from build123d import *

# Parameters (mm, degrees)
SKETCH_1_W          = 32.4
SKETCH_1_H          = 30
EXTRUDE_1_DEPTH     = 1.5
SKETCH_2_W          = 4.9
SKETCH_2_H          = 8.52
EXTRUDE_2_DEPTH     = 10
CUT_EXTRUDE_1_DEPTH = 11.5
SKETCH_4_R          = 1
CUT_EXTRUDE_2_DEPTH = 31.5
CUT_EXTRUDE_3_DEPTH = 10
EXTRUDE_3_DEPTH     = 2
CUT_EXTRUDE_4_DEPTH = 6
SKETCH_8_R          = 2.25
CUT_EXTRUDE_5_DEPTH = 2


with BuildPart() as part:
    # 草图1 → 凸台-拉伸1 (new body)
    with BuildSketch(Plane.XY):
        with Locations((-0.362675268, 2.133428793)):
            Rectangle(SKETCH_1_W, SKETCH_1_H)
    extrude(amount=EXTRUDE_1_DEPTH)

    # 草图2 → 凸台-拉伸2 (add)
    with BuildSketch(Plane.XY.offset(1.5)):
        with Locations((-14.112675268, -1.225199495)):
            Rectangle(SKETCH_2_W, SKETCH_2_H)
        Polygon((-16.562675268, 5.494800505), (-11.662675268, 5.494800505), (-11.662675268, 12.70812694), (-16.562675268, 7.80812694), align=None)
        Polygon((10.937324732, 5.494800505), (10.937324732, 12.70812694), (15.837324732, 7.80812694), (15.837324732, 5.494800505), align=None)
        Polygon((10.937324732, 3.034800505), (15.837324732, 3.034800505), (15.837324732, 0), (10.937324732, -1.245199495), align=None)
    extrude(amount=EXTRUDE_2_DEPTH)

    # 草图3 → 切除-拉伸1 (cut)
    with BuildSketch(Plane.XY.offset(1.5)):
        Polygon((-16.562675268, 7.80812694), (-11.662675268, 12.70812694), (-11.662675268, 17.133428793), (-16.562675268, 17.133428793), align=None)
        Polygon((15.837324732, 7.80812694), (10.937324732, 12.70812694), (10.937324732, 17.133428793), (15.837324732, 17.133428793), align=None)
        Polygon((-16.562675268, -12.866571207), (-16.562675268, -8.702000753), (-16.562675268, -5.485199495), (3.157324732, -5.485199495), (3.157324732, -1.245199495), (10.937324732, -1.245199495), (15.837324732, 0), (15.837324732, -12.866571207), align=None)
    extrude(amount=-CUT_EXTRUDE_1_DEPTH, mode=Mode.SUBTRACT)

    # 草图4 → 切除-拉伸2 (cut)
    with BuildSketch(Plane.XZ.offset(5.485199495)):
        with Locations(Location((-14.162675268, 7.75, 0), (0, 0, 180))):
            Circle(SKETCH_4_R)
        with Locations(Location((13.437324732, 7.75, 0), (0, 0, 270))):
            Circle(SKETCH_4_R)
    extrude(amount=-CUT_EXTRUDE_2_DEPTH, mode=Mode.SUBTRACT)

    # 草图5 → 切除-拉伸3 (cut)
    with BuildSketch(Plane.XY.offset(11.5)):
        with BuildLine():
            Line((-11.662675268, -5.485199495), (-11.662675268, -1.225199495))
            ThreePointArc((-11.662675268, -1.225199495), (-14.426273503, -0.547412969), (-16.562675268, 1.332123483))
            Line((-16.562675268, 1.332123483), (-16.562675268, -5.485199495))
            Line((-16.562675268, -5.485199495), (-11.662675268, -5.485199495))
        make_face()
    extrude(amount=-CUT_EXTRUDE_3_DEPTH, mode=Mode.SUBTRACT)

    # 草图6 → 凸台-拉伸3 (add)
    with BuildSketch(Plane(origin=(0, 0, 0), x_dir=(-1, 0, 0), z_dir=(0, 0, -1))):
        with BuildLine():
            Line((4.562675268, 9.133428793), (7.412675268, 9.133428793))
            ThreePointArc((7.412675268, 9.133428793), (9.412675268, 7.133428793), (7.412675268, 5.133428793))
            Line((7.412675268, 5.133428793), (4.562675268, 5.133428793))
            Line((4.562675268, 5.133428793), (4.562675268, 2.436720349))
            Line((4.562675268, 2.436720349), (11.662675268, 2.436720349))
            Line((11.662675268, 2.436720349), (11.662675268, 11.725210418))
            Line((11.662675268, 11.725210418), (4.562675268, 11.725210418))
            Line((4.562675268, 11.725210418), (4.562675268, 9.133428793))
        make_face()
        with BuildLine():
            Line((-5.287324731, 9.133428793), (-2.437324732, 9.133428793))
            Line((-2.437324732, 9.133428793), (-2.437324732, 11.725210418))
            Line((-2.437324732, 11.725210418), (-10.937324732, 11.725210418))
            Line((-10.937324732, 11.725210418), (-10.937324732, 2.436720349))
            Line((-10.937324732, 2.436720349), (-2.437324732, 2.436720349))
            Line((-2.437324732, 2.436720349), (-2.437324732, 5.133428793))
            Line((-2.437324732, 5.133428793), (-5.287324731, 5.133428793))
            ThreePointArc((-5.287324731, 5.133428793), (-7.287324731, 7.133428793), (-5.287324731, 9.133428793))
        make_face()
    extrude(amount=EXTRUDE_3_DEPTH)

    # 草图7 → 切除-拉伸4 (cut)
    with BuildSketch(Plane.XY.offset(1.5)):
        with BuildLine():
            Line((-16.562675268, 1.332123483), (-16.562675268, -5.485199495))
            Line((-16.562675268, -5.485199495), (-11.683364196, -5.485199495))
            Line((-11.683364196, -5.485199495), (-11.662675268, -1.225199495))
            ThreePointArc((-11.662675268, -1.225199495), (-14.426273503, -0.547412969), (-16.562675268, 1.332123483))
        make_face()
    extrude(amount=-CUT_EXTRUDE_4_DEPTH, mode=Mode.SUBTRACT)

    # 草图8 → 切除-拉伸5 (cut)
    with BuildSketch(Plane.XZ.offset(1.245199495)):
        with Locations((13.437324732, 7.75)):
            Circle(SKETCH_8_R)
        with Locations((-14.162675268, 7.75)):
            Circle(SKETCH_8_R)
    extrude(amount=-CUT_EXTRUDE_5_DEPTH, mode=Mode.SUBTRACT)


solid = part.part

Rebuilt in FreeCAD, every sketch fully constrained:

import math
import FreeCAD as App
import Part
import Sketcher

V = App.Vector

doc = App.newDocument("Part")
body = doc.addObject("PartDesign::Body", "Body")

sketch1 = doc.addObject("Sketcher::SketchObject", "Sketch")
body.addObject(sketch1)
sketch1.AttachmentSupport = (doc.XY_Plane, [""])
sketch1.MapMode = "FlatFace"
sketch1.addGeometry([
    Part.LineSegment(V(-17, 17, 0), V(-17, -13, 0)),
    Part.LineSegment(V(-17, -13, 0), V(16, -13, 0)),
    Part.LineSegment(V(16, -13, 0), V(16, 17, 0)),
    Part.LineSegment(V(16, 17, 0), V(-17, 17, 0)),
], False)
sketch1.addConstraint([
    Sketcher.Constraint("Coincident", 0, 2, 1, 1),
    Sketcher.Constraint("Coincident", 1, 2, 2, 1),
    Sketcher.Constraint("Coincident", 2, 2, 3, 1),
    Sketcher.Constraint("Coincident", 3, 2, 0, 1),
    Sketcher.Constraint("Vertical", 0),
    Sketcher.Constraint("Horizontal", 1),
    Sketcher.Constraint("Vertical", 2),
    Sketcher.Constraint("Horizontal", 3),
    Sketcher.Constraint("DistanceY", 0, 2, 0, 1, 30.0),
    Sketcher.Constraint("DistanceX", 1, 1, 1, 2, 32.4),
    Sketcher.Constraint("DistanceY", 0, 2, -1, 1, 12.866571),
    Sketcher.Constraint("DistanceX", 0, 2, -1, 1, 16.562675),
])
pad1 = doc.addObject("PartDesign::Pad", "Pad")
body.addObject(pad1)
pad1.Profile = sketch1
pad1.Length = 1.5

sketch2 = doc.addObject("Sketcher::SketchObject", "Sketch001")
body.addObject(sketch2)
sketch2.AttachmentSupport = (doc.XY_Plane, [""])
sketch2.MapMode = "FlatFace"
sketch2.AttachmentOffset = App.Placement(V(0, 0, 1.5), App.Rotation())
sketch2.addGeometry([
    Part.LineSegment(V(-16.6, 3, 0), V(-16.6, -5.5, 0)),
    Part.LineSegment(V(-16.6, -5.5, 0), V(-11.7, -5.5, 0)),
    Part.LineSegment(V(-11.7, -5.5, 0), V(-11.7, 3, 0)),
    Part.LineSegment(V(-11.7, 3, 0), V(-16.6, 3, 0)),
    Part.LineSegment(V(-16.6, 5.5, 0), V(-11.7, 5.5, 0)),
    Part.LineSegment(V(-11.7, 5.5, 0), V(-11.7, 12.7, 0)),
    Part.LineSegment(V(-11.7, 12.7, 0), V(-16.6, 7.8, 0)),
    Part.LineSegment(V(-16.6, 7.8, 0), V(-16.6, 5.5, 0)),
    Part.LineSegment(V(10.9, 12.7, 0), V(10.9, 5.5, 0)),
    Part.LineSegment(V(10.9, 5.5, 0), V(15.8, 5.5, 0)),
    Part.LineSegment(V(15.8, 5.5, 0), V(15.8, 7.8, 0)),
    Part.LineSegment(V(15.8, 7.8, 0), V(10.9, 12.7, 0)),
    Part.LineSegment(V(15.8, 3, 0), V(10.9, 3, 0)),
    Part.LineSegment(V(10.9, 3, 0), V(10.9, -1.2, 0)),
    Part.LineSegment(V(10.9, -1.2, 0), V(15.8, 0, 0)),
    Part.LineSegment(V(15.8, 0, 0), V(15.8, 3, 0)),
], False)
sketch2.addConstraint([
    Sketcher.Constraint("Coincident", 0, 2, 1, 1),
    Sketcher.Constraint("Coincident", 1, 2, 2, 1),
    Sketcher.Constraint("Coincident", 2, 2, 3, 1),
    Sketcher.Constraint("Coincident", 3, 2, 0, 1),
    Sketcher.Constraint("Coincident", 4, 2, 5, 1),
    Sketcher.Constraint("Coincident", 5, 2, 6, 1),
    Sketcher.Constraint("Coincident", 6, 2, 7, 1),
    Sketcher.Constraint("Coincident", 7, 2, 4, 1),
    Sketcher.Constraint("Coincident", 8, 2, 9, 1),
    Sketcher.Constraint("Coincident", 9, 2, 10, 1),
    Sketcher.Constraint("Coincident", 10, 2, 11, 1),
    Sketcher.Constraint("Coincident", 11, 2, 8, 1),
    Sketcher.Constraint("Coincident", 12, 2, 13, 1),
    Sketcher.Constraint("Coincident", 13, 2, 14, 1),
    Sketcher.Constraint("Coincident", 14, 2, 15, 1),
    Sketcher.Constraint("Coincident", 15, 2, 12, 1),
    Sketcher.Constraint("Vertical", 0),
    Sketcher.Constraint("Horizontal", 1),
    Sketcher.Constraint("Vertical", 2),
    Sketcher.Constraint("Horizontal", 3),
    Sketcher.Constraint("Horizontal", 4),
    Sketcher.Constraint("Vertical", 5),
    Sketcher.Constraint("Vertical", 7),
    Sketcher.Constraint("Vertical", 8),
    Sketcher.Constraint("Horizontal", 9),
    Sketcher.Constraint("Vertical", 10),
    Sketcher.Constraint("Horizontal", 12),
    Sketcher.Constraint("Vertical", 13),
    Sketcher.Constraint("Vertical", 15),
    Sketcher.Constraint("PointOnObject", 14, 2, -1),
    Sketcher.Constraint("Perpendicular", 6, 11),
    Sketcher.Constraint("Horizontal", 7, 2, 8, 2),
    Sketcher.Constraint("Horizontal", 6, 2, 10, 2),
    Sketcher.Constraint("Horizontal", 5, 2, 11, 2),
    Sketcher.Constraint("Horizontal", 3, 2, 12, 2),
    Sketcher.Constraint("Vertical", 2, 2, 4, 2),
    Sketcher.Constraint("Vertical", 3, 2, 6, 2),
    Sketcher.Constraint("Vertical", 11, 2, 12, 2),
    Sketcher.Constraint("Vertical", 10, 2, 14, 2),
    Sketcher.Constraint("Equal", 4, 9),
    Sketcher.Constraint("DistanceX", 1, 1, 1, 2, 4.9),
    Sketcher.Constraint("DistanceY", 0, 2, 0, 1, 8.52),
    Sketcher.Constraint("DistanceY", 13, 2, 13, 1, 4.28),
    Sketcher.Constraint("DistanceX", 4, 2, 8, 2, 22.6),
    Sketcher.Constraint("DistanceY", 2, 2, 4, 2, 2.46),
    Sketcher.Constraint("DistanceY", 15, 1, 15, 2, 3.034801),
    Sketcher.Constraint("DistanceY", 5, 1, 5, 2, 7.213326),
    Sketcher.Constraint("DistanceX", 0, 2, -1, 1, 16.562675),
])
pad2 = doc.addObject("PartDesign::Pad", "Pad001")
body.addObject(pad2)
pad2.Profile = sketch2
pad2.Length = 10

sketch3 = doc.addObject("Sketcher::SketchObject", "Sketch002")
body.addObject(sketch3)
sketch3.AttachmentSupport = (doc.XY_Plane, [""])
sketch3.MapMode = "FlatFace"
sketch3.AttachmentOffset = App.Placement(V(0, 0, 1.5), App.Rotation())
sketch3.addGeometry([
    Part.LineSegment(V(-16.6, 7.8, 0), V(-11.7, 12.7, 0)),
    Part.LineSegment(V(-11.7, 12.7, 0), V(-11.7, 17.1, 0)),
    Part.LineSegment(V(-11.7, 17.1, 0), V(-16.6, 17.1, 0)),
    Part.LineSegment(V(-16.6, 17.1, 0), V(-16.6, 7.8, 0)),
    Part.LineSegment(V(10.9, 12.7, 0), V(15.8, 7.8, 0)),
    Part.LineSegment(V(15.8, 7.8, 0), V(15.8, 17.1, 0)),
    Part.LineSegment(V(15.8, 17.1, 0), V(10.9, 17.1, 0)),
    Part.LineSegment(V(10.9, 17.1, 0), V(10.9, 12.7, 0)),
    Part.LineSegment(V(-16.6, -5.5, 0), V(-16.6, -12.9, 0)),
    Part.LineSegment(V(-16.6, -12.9, 0), V(15.8, -12.9, 0)),
    Part.LineSegment(V(15.8, -12.9, 0), V(15.8, 0, 0)),
    Part.LineSegment(V(15.8, 0, 0), V(10.9, -1.2, 0)),
    Part.LineSegment(V(10.9, -1.2, 0), V(3.2, -1.2, 0)),
    Part.LineSegment(V(3.2, -1.2, 0), V(3.2, -5.5, 0)),
    Part.LineSegment(V(3.2, -5.5, 0), V(-16.6, -5.5, 0)),
], False)
sketch3.addConstraint([
    Sketcher.Constraint("Coincident", 0, 2, 1, 1),
    Sketcher.Constraint("Coincident", 1, 2, 2, 1),
    Sketcher.Constraint("Coincident", 2, 2, 3, 1),
    Sketcher.Constraint("Coincident", 3, 2, 0, 1),
    Sketcher.Constraint("Coincident", 4, 2, 5, 1),
    Sketcher.Constraint("Coincident", 5, 2, 6, 1),
    Sketcher.Constraint("Coincident", 6, 2, 7, 1),
    Sketcher.Constraint("Coincident", 7, 2, 4, 1),
    Sketcher.Constraint("Coincident", 8, 2, 9, 1),
    Sketcher.Constraint("Coincident", 9, 2, 10, 1),
    Sketcher.Constraint("Coincident", 10, 2, 11, 1),
    Sketcher.Constraint("Coincident", 11, 2, 12, 1),
    Sketcher.Constraint("Coincident", 12, 2, 13, 1),
    Sketcher.Constraint("Coincident", 13, 2, 14, 1),
    Sketcher.Constraint("Coincident", 14, 2, 8, 1),
    Sketcher.Constraint("Vertical", 1),
    Sketcher.Constraint("Horizontal", 2),
    Sketcher.Constraint("Vertical", 3),
    Sketcher.Constraint("Vertical", 5),
    Sketcher.Constraint("Horizontal", 6),
    Sketcher.Constraint("Vertical", 7),
    Sketcher.Constraint("Vertical", 8),
    Sketcher.Constraint("Horizontal", 9),
    Sketcher.Constraint("Vertical", 10),
    Sketcher.Constraint("Horizontal", 12),
    Sketcher.Constraint("Vertical", 13),
    Sketcher.Constraint("Horizontal", 14),
    Sketcher.Constraint("PointOnObject", 10, 2, -1),
    Sketcher.Constraint("Perpendicular", 0, 4),
    Sketcher.Constraint("Horizontal", 3, 2, 4, 2),
    Sketcher.Constraint("Horizontal", 2, 2, 5, 2),
    Sketcher.Constraint("Horizontal", 0, 2, 7, 2),
    Sketcher.Constraint("Vertical", 3, 2, 8, 2),
    Sketcher.Constraint("Vertical", 5, 2, 9, 2),
    Sketcher.Constraint("Vertical", 7, 2, 11, 2),
    Sketcher.Constraint("Equal", 2, 6),
    Sketcher.Constraint("DistanceX", 2, 2, 2, 1, 4.9),
    Sketcher.Constraint("DistanceX", 9, 1, 9, 2, 32.4),
    Sketcher.Constraint("DistanceY", 8, 2, 2, 2, 30.0),
    Sketcher.Constraint("DistanceX", 12, 2, 12, 1, 7.78),
    Sketcher.Constraint("DistanceY", 13, 2, 13, 1, 4.24),
    Sketcher.Constraint("DistanceY", 1, 1, 1, 2, 4.425302),
    Sketcher.Constraint("DistanceY", 8, 2, 8, 1, 7.381372),
    Sketcher.Constraint("DistanceY", 10, 1, 10, 2, 12.866571),
    Sketcher.Constraint("DistanceX", 0, 2, -1, 1, 11.662675),
])
pocket1 = doc.addObject("PartDesign::Pocket", "Pocket")
body.addObject(pocket1)
pocket1.Profile = sketch3
pocket1.Length = 11.5

sketch4 = doc.addObject("Sketcher::SketchObject", "Sketch003")
body.addObject(sketch4)
sketch4.AttachmentSupport = (doc.XZ_Plane, [""])
sketch4.MapMode = "FlatFace"
sketch4.AttachmentOffset = App.Placement(V(0, 0, 5.485199), App.Rotation())
sketch4.addGeometry([
    Part.Circle(V(-14.2, 7.8, 0), V(0, 0, 1), 1),
    Part.Circle(V(13.4, 7.8, 0), V(0, 0, 1), 1),
], False)
sketch4.addConstraint([
    Sketcher.Constraint("Equal", 0, 1),
    Sketcher.Constraint("Horizontal", 0, 3, 1, 3),
    Sketcher.Constraint("Diameter", 0, 2.0),
    Sketcher.Constraint("DistanceX", 0, 3, 1, 3, 27.6),
    Sketcher.Constraint("DistanceY", -1, 1, 0, 3, 7.75),
    Sketcher.Constraint("DistanceX", 0, 3, -1, 1, 14.162675),
])
pocket2 = doc.addObject("PartDesign::Pocket", "Pocket001")
body.addObject(pocket2)
pocket2.Profile = sketch4
pocket2.Length = 31.5

sketch5 = doc.addObject("Sketcher::SketchObject", "Sketch004")
body.addObject(sketch5)
sketch5.AttachmentSupport = (doc.XY_Plane, [""])
sketch5.MapMode = "FlatFace"
sketch5.AttachmentOffset = App.Placement(V(0, 0, 11.5), App.Rotation())
sketch5.addGeometry([
    Part.LineSegment(V(-11.7, -5.5, 0), V(-11.7, -1.2, 0)),
    Part.ArcOfCircle(Part.Circle(V(-11.7, 4.7, 0), V(0, 0, 1), 6), math.radians(-145), math.radians(-90)),
    Part.LineSegment(V(-16.6, 1.3, 0), V(-16.6, -5.5, 0)),
    Part.LineSegment(V(-16.6, -5.5, 0), V(-11.7, -5.5, 0)),
], False)
sketch5.addConstraint([
    Sketcher.Constraint("Coincident", 0, 2, 1, 2),
    Sketcher.Constraint("Coincident", 1, 1, 2, 1),
    Sketcher.Constraint("Coincident", 2, 2, 3, 1),
    Sketcher.Constraint("Coincident", 3, 2, 0, 1),
    Sketcher.Constraint("Vertical", 0),
    Sketcher.Constraint("Vertical", 2),
    Sketcher.Constraint("Horizontal", 3),
    Sketcher.Constraint("Vertical", 1, 3, 0, 2),
    Sketcher.Constraint("DistanceX", 3, 1, 3, 2, 4.9),
    Sketcher.Constraint("DistanceY", 0, 1, 0, 2, 4.26),
    Sketcher.Constraint("Radius", 1, 5.973024),
    Sketcher.Constraint("DistanceY", 0, 2, -1, 1, 1.225199),
    Sketcher.Constraint("DistanceX", 1, 3, -1, 1, 11.662675),
])
pocket3 = doc.addObject("PartDesign::Pocket", "Pocket002")
body.addObject(pocket3)
pocket3.Profile = sketch5
pocket3.Length = 10

sketch6 = doc.addObject("Sketcher::SketchObject", "Sketch005")
body.addObject(sketch6)
sketch6.AttachmentSupport = (doc.XY_Plane, [""])
sketch6.MapMode = "FlatFace"
sketch6.addGeometry([
    Part.LineSegment(V(-4.6, 9.1, 0), V(-7.4, 9.1, 0)),
    Part.ArcOfCircle(Part.Circle(V(-7.4, 7.1, 0), V(0, 0, 1), 2), math.radians(90), math.radians(270)),
    Part.LineSegment(V(-7.4, 5.1, 0), V(-4.6, 5.1, 0)),
    Part.LineSegment(V(-4.6, 5.1, 0), V(-4.6, 2.4, 0)),
    Part.LineSegment(V(-4.6, 2.4, 0), V(-11.7, 2.4, 0)),
    Part.LineSegment(V(-11.7, 2.4, 0), V(-11.7, 11.7, 0)),
    Part.LineSegment(V(-11.7, 11.7, 0), V(-4.6, 11.7, 0)),
    Part.LineSegment(V(-4.6, 11.7, 0), V(-4.6, 9.1, 0)),
    Part.LineSegment(V(5.3, 9.1, 0), V(2.4, 9.1, 0)),
    Part.LineSegment(V(2.4, 9.1, 0), V(2.4, 11.7, 0)),
    Part.LineSegment(V(2.4, 11.7, 0), V(10.9, 11.7, 0)),
    Part.LineSegment(V(10.9, 11.7, 0), V(10.9, 2.4, 0)),
    Part.LineSegment(V(10.9, 2.4, 0), V(2.4, 2.4, 0)),
    Part.LineSegment(V(2.4, 2.4, 0), V(2.4, 5.1, 0)),
    Part.LineSegment(V(2.4, 5.1, 0), V(5.3, 5.1, 0)),
    Part.ArcOfCircle(Part.Circle(V(5.3, 7.1, 0), V(0, 0, 1), 2), math.radians(-90), math.radians(90)),
], False)
sketch6.addConstraint([
    Sketcher.Constraint("Tangent", 0, 2, 1, 1),
    Sketcher.Constraint("Tangent", 1, 2, 2, 1),
    Sketcher.Constraint("Coincident", 2, 2, 3, 1),
    Sketcher.Constraint("Coincident", 3, 2, 4, 1),
    Sketcher.Constraint("Coincident", 4, 2, 5, 1),
    Sketcher.Constraint("Coincident", 5, 2, 6, 1),
    Sketcher.Constraint("Coincident", 6, 2, 7, 1),
    Sketcher.Constraint("Coincident", 7, 2, 0, 1),
    Sketcher.Constraint("Coincident", 8, 2, 9, 1),
    Sketcher.Constraint("Coincident", 9, 2, 10, 1),
    Sketcher.Constraint("Coincident", 10, 2, 11, 1),
    Sketcher.Constraint("Coincident", 11, 2, 12, 1),
    Sketcher.Constraint("Coincident", 12, 2, 13, 1),
    Sketcher.Constraint("Coincident", 13, 2, 14, 1),
    Sketcher.Constraint("Tangent", 14, 2, 15, 1),
    Sketcher.Constraint("Tangent", 15, 2, 8, 1),
    Sketcher.Constraint("Horizontal", 0),
    Sketcher.Constraint("Horizontal", 2),
    Sketcher.Constraint("Vertical", 3),
    Sketcher.Constraint("Horizontal", 4),
    Sketcher.Constraint("Vertical", 5),
    Sketcher.Constraint("Horizontal", 6),
    Sketcher.Constraint("Vertical", 7),
    Sketcher.Constraint("Horizontal", 8),
    Sketcher.Constraint("Vertical", 9),
    Sketcher.Constraint("Horizontal", 10),
    Sketcher.Constraint("Vertical", 11),
    Sketcher.Constraint("Horizontal", 12),
    Sketcher.Constraint("Vertical", 13),
    Sketcher.Constraint("Horizontal", 14),
    Sketcher.Constraint("Equal", 1, 15),
    Sketcher.Constraint("Horizontal", 1, 3, 15, 3),
    Sketcher.Constraint("Horizontal", 6, 2, 9, 2),
    Sketcher.Constraint("Horizontal", 4, 2, 11, 2),
    Sketcher.Constraint("Vertical", 3, 2, 6, 2),
    Sketcher.Constraint("Vertical", 9, 2, 12, 2),
    Sketcher.Constraint("Equal", 2, 8),
    Sketcher.Constraint("Radius", 1, 2.0),
    Sketcher.Constraint("DistanceX", 4, 2, 4, 1, 7.1),
    Sketcher.Constraint("DistanceX", 10, 1, 10, 2, 8.5),
    Sketcher.Constraint("DistanceX", 7, 2, 8, 2, 7.0),
    Sketcher.Constraint("DistanceX", 0, 2, 0, 1, 2.85),
    Sketcher.Constraint("DistanceY", 3, 2, 3, 1, 2.696708),
    Sketcher.Constraint("DistanceY", 5, 1, 5, 2, 9.28849),
    Sketcher.Constraint("DistanceY", -1, 1, 1, 3, 7.133429),
    Sketcher.Constraint("DistanceX", 1, 3, -1, 1, 7.412675),
])
pad3 = doc.addObject("PartDesign::Pad", "Pad002")
body.addObject(pad3)
pad3.Profile = sketch6
pad3.Length = 2
pad3.Reversed = True

sketch7 = doc.addObject("Sketcher::SketchObject", "Sketch006")
body.addObject(sketch7)
sketch7.AttachmentSupport = (doc.XY_Plane, [""])
sketch7.MapMode = "FlatFace"
sketch7.AttachmentOffset = App.Placement(V(0, 0, 1.5), App.Rotation())
sketch7.addGeometry([
    Part.LineSegment(V(-16.6, 1.3, 0), V(-16.6, -5.5, 0)),
    Part.LineSegment(V(-16.6, -5.5, 0), V(-11.7, -5.5, 0)),
    Part.LineSegment(V(-11.7, -5.5, 0), V(-11.7, -1.2, 0)),
    Part.ArcOfCircle(Part.Circle(V(-11.7, 4.7, 0), V(0, 0, 1), 6), math.radians(-145), math.radians(-90)),
], False)
sketch7.addConstraint([
    Sketcher.Constraint("Coincident", 0, 2, 1, 1),
    Sketcher.Constraint("Coincident", 1, 2, 2, 1),
    Sketcher.Constraint("Coincident", 2, 2, 3, 2),
    Sketcher.Constraint("Coincident", 3, 1, 0, 1),
    Sketcher.Constraint("Vertical", 0),
    Sketcher.Constraint("Horizontal", 1),
    Sketcher.Constraint("Vertical", 3, 3, 2, 2),
    Sketcher.Constraint("DistanceX", 0, 2, 3, 3, 4.9),
    Sketcher.Constraint("DistanceY", 1, 2, 2, 2, 4.26),
    Sketcher.Constraint("Radius", 3, 5.973024),
    Sketcher.Constraint("DistanceX", 1, 1, 1, 2, 4.879311),
    Sketcher.Constraint("DistanceY", 0, 2, -1, 1, 5.485199),
    Sketcher.Constraint("DistanceX", 3, 3, -1, 1, 11.662675),
])
pocket4 = doc.addObject("PartDesign::Pocket", "Pocket003")
body.addObject(pocket4)
pocket4.Profile = sketch7
pocket4.Length = 6

sketch8 = doc.addObject("Sketcher::SketchObject", "Sketch007")
body.addObject(sketch8)
sketch8.AttachmentSupport = (doc.XZ_Plane, [""])
sketch8.MapMode = "FlatFace"
sketch8.AttachmentOffset = App.Placement(V(0, 0, 1.245199), App.Rotation())
sketch8.addGeometry([
    Part.Circle(V(13.4, 7.8, 0), V(0, 0, 1), 2.2),
    Part.Circle(V(-14.2, 7.8, 0), V(0, 0, 1), 2.2),
], False)
sketch8.addConstraint([
    Sketcher.Constraint("Equal", 0, 1),
    Sketcher.Constraint("Horizontal", 0, 3, 1, 3),
    Sketcher.Constraint("Diameter", 0, 4.5),
    Sketcher.Constraint("DistanceX", 1, 3, 0, 3, 27.6),
    Sketcher.Constraint("DistanceY", -1, 1, 0, 3, 7.75),
    Sketcher.Constraint("DistanceX", -1, 1, 0, 3, 13.437325),
])
pocket5 = doc.addObject("PartDesign::Pocket", "Pocket004")
body.addObject(pocket5)
pocket5.Profile = sketch8
pocket5.Length = 2

doc.recompute()
